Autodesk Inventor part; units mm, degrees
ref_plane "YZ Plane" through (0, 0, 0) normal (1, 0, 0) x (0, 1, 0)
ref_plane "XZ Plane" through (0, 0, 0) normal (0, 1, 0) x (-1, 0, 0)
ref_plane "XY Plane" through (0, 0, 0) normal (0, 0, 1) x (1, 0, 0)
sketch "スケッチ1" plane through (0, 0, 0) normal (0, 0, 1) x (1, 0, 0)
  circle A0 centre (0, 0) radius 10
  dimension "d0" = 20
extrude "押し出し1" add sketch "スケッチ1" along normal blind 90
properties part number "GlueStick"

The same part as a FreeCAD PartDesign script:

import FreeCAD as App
import Part
import Sketcher
from FreeCAD import Vector

doc = App.newDocument("Part")
body = doc.addObject("PartDesign::Body", "Body")

# Sketch on XY plane
sketch1 = body.newObject("Sketcher::SketchObject", "Sketch")
sketch1.AttachmentSupport = (doc.getObject("XY_Plane"), [""])
sketch1.MapMode = "FlatFace"
sketch1.addGeometry(Part.Circle(Vector(0, 0, 0), Vector(0, 0, 1), 10), False)
sketch1.addConstraint([
    Sketcher.Constraint("Coincident", 0, 3, -1, 1),
    Sketcher.Constraint("Diameter", 0, 20.0),
])
pad1 = body.newObject("PartDesign::Pad", "Pad")
pad1.Profile = sketch1
pad1.Length = 90

doc.recompute()
